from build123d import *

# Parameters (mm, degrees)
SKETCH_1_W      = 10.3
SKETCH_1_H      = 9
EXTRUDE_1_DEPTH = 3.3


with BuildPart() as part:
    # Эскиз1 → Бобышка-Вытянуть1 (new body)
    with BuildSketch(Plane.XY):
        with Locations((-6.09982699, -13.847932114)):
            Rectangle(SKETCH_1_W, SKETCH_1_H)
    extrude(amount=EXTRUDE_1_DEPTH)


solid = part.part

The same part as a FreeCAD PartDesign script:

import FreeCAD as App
import Part
import Sketcher
Q = App.Units.Quantity


def add_polygon(sketch, points):
    """Adds a closed chain of lines whose ends are joined by coincident constraints."""
    first, n = sketch.GeometryCount, len(points)
    for a, b in zip(points, points[1:] + points[:1]):
        sketch.addGeometry(Part.LineSegment(App.Vector(*a, 0), App.Vector(*b, 0)), False)
    for i in range(n):
        sketch.addConstraint(Sketcher.Constraint("Coincident", first + i, 2, first + (i + 1) % n, 1))

doc = App.newDocument("Part")
body = doc.addObject("PartDesign::Body", "Body")

# Sketch on XY plane
sketch1 = body.newObject("Sketcher::SketchObject", "Sketch")
sketch1.AttachmentSupport = (doc.getObject("XY_Plane"), [""])
sketch1.MapMode = "FlatFace"
add_polygon(sketch1, [(-11, -9), (-11, -18), (-1, -18), (-1, -9)])  # lines 0-3
sketch1.addConstraint(Sketcher.Constraint("Vertical", 0))
sketch1.addConstraint(Sketcher.Constraint("Horizontal", 1))
sketch1.addConstraint(Sketcher.Constraint("Vertical", 2))
sketch1.addConstraint(Sketcher.Constraint("Horizontal", 3))
sketch1.addConstraint(Sketcher.Constraint("DistanceY", 0, 2, 0, 1, Q("9 mm")))
sketch1.addConstraint(Sketcher.Constraint("DistanceX", 1, 1, 1, 2, Q("10.3 mm")))
sketch1.addConstraint(Sketcher.Constraint("DistanceX", 0, 2, -1, 1, Q("11.249827 mm")))
sketch1.addConstraint(Sketcher.Constraint("DistanceY", 0, 2, -1, 1, Q("18.347932 mm")))
pad1 = body.newObject("PartDesign::Pad", "Pad")
pad1.Profile = sketch1
pad1.Length = 3.3

doc.recompute()
